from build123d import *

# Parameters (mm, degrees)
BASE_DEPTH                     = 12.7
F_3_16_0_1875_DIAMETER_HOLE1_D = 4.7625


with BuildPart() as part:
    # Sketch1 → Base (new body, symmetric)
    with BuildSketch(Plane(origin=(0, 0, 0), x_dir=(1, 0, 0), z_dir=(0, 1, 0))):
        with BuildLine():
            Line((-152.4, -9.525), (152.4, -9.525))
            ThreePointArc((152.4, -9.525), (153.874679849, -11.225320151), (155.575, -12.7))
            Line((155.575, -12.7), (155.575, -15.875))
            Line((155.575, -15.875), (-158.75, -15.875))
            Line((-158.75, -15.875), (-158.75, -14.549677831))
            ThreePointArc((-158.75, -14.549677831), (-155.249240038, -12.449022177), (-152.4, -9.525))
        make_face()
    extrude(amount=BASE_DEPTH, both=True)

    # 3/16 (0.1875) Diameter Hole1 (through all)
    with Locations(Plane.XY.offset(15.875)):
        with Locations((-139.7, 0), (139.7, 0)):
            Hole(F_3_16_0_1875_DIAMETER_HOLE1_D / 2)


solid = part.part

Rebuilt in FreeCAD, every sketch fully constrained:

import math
import FreeCAD as App
import Part
import Sketcher
Q = App.Units.Quantity

doc = App.newDocument("Part")
body = doc.addObject("PartDesign::Body", "Body")

# Sketch on XZ plane
sketch1 = body.newObject("Sketcher::SketchObject", "Sketch")
sketch1.AttachmentSupport = (doc.getObject("XZ_Plane"), [""])
sketch1.MapMode = "FlatFace"
sketch1.addGeometry([
    Part.LineSegment(App.Vector(152.4, 9.5, 0), App.Vector(-152.4, 9.5, 0)),  # 0
    Part.ArcOfCircle(Part.Circle(App.Vector(-165.1, 0, 0), App.Vector(0, 0, 1), 15.9), math.radians(37), math.radians(66)),  # 1
    Part.LineSegment(App.Vector(-158.8, 14.5, 0), App.Vector(-158.8, 15.9, 0)),  # 2
    Part.LineSegment(App.Vector(-158.8, 15.9, 0), App.Vector(155.6, 15.9, 0)),  # 3
    Part.LineSegment(App.Vector(155.6, 15.9, 0), App.Vector(155.6, 12.7, 0)),  # 4
    Part.ArcOfCircle(Part.Circle(App.Vector(165.1, 0, 0), App.Vector(0, 0, 1), 15.9), math.radians(126.87), math.radians(143.13)),  # 5
], False)
sketch1.addConstraint([
    Sketcher.Constraint("Coincident", 0, 2, 1, 1),
    Sketcher.Constraint("Coincident", 1, 2, 2, 1),
    Sketcher.Constraint("Coincident", 2, 2, 3, 1),
    Sketcher.Constraint("Coincident", 3, 2, 4, 1),
    Sketcher.Constraint("Coincident", 4, 2, 5, 1),
    Sketcher.Constraint("Coincident", 5, 2, 0, 1),
    Sketcher.Constraint("Horizontal", 0),
    Sketcher.Constraint("Vertical", 2),
    Sketcher.Constraint("Horizontal", 3),
    Sketcher.Constraint("Vertical", 4),
    Sketcher.Constraint("Equal", 1, 5),
    Sketcher.Constraint("Symmetric", 1, 3, 5, 3, -1, 1),
    Sketcher.Constraint("PointOnObject", 1, 3, -1),
    Sketcher.Constraint("DistanceX", 0, 2, 0, 1, Q("12 in")),
    Sketcher.Constraint("Radius", 1, Q("0.625 in")),
    Sketcher.Constraint("DistanceX", 1, 3, 5, 3, Q("13 in")),
    Sketcher.Constraint("DistanceY", -1, 1, 4, 2, Q("0.5 in")),
    Sketcher.Constraint("DistanceX", 3, 1, 3, 2, Q("12.375 in")),
    Sketcher.Constraint("DistanceY", 4, 2, 4, 1, Q("0.125 in")),
])
pad1 = body.newObject("PartDesign::Pad", "Pad")
pad1.Profile = sketch1
pad1.Length = Q("1 in")
pad1.Midplane = True

# Sketch on XY plane
sketch2 = body.newObject("Sketcher::SketchObject", "Sketch001")
sketch2.AttachmentSupport = (doc.getObject("XY_Plane"), [""])
sketch2.MapMode = "FlatFace"
sketch2.AttachmentOffset = App.Placement(App.Vector(0, 0, 0.625 * 25.4), App.Rotation())
sketch2.addGeometry([
    Part.Circle(App.Vector(-139.7, 0, 0), App.Vector(0, 0, 1), 2.4),
    Part.Circle(App.Vector(139.7, 0, 0), App.Vector(0, 0, 1), 2.4),
], False)
sketch2.addConstraint([
    Sketcher.Constraint("Equal", 0, 1),
    Sketcher.Constraint("Symmetric", 0, 3, 1, 3, -1, 1),
    Sketcher.Constraint("PointOnObject", 0, 3, -1),
    Sketcher.Constraint("Diameter", 0, Q("0.1875 in")),
    Sketcher.Constraint("DistanceX", 0, 3, 1, 3, Q("11 in")),
])
doc.recompute()
hole = body.newObject("PartDesign::Hole", "Hole")
hole.Profile = sketch2
hole.ThreadType = "None"
hole.Diameter = Q("0.1875 in")
hole.DepthType = "ThroughAll"

doc.recompute()
